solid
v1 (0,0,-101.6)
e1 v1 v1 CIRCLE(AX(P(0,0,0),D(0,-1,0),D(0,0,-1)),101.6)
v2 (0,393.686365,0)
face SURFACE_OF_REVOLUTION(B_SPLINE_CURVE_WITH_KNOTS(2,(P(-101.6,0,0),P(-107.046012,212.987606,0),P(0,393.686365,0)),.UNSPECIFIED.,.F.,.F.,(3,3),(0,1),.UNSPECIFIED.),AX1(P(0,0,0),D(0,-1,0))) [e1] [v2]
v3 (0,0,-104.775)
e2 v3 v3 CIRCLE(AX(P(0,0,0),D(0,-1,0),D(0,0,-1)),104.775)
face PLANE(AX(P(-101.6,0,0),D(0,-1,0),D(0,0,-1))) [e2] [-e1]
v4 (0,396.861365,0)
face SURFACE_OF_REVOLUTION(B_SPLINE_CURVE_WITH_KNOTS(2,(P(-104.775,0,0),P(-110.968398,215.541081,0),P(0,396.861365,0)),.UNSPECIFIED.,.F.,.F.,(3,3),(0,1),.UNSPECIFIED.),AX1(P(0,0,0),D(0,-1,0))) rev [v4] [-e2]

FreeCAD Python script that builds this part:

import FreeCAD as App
import Part
import Sketcher

V = App.Vector

doc = App.newDocument("Part")
params = doc.addObject("Spreadsheet::Sheet", "Params")
for row, (alias, value) in enumerate([
    ("revolution_angle", "360 deg"),
], start=1):
    params.set(f"A{row}", alias)
    params.set(f"B{row}", "=" + value)
    params.setAlias(f"B{row}", alias)

body = doc.addObject("PartDesign::Body", "Body")

# Sketch on XY plane
sketch1 = body.newObject("Sketcher::SketchObject", "Sketch")
sketch1.AttachmentSupport = (doc.getObject("XY_Plane"), [""])
sketch1.MapMode = "FlatFace"
sketch1.addGeometry([
    Part.LineSegment(V(-104.775, 0, 0), V(-101.6, 0, 0)),
    Part.BSplineCurve([V(-101.6, 0, 0), V(-107.046012, 212.987606, 0), V(0, 393.686365, 0)], [3, 3], [0, 1], False, 2, [1, 1, 1], False),
    Part.LineSegment(V(0, 393.686365, 0), V(0, 396.861365, 0)),
    Part.BSplineCurve([V(-104.775, 0, 0), V(-110.968398, 215.541081, 0), V(0, 396.861365, 0)], [3, 3], [0, 1], False, 2, [1, 1, 1], False),
], False)
sketch1.addConstraint([
    Sketcher.Constraint("Block", 1),
    Sketcher.Constraint("Block", 3),
    Sketcher.Constraint("Coincident", 0, 2, 1, 1),
    Sketcher.Constraint("Coincident", 1, 2, 2, 1),
    Sketcher.Constraint("Coincident", 2, 2, 3, 2),
    Sketcher.Constraint("Coincident", 3, 1, 0, 1),
])
revolution = body.newObject("PartDesign::Revolution", "Revolution")
revolution.Profile = sketch1
revolution.ReferenceAxis = (sketch1, ["V_Axis"])
revolution.setExpression("Angle", "Params.revolution_angle")

doc.recompute()
